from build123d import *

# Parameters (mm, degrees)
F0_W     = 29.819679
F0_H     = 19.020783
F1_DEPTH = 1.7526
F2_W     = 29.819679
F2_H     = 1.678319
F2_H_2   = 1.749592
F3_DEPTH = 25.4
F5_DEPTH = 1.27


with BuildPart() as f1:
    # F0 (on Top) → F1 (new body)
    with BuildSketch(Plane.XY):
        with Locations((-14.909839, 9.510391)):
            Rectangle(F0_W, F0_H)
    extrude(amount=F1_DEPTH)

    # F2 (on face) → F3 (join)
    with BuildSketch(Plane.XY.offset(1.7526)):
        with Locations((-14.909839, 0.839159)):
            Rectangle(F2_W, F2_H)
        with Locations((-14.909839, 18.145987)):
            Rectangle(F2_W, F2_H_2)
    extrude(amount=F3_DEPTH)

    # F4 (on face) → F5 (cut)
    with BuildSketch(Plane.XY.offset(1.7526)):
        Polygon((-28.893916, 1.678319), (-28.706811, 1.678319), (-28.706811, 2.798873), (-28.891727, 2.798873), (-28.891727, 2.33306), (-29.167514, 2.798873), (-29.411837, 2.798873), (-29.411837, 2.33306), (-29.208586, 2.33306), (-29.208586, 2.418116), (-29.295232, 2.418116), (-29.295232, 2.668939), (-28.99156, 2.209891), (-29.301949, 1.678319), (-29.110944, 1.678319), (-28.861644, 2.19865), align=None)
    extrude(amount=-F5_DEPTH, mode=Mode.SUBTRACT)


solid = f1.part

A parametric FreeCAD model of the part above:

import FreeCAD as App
import Part
import Sketcher
Q = App.Units.Quantity


def add_polygon(sketch, points):
    """Adds a closed chain of lines whose ends are joined by coincident constraints."""
    first, n = sketch.GeometryCount, len(points)
    for a, b in zip(points, points[1:] + points[:1]):
        sketch.addGeometry(Part.LineSegment(App.Vector(*a, 0), App.Vector(*b, 0)), False)
    for i in range(n):
        sketch.addConstraint(Sketcher.Constraint("Coincident", first + i, 2, first + (i + 1) % n, 1))

doc = App.newDocument("Part")
body = doc.addObject("PartDesign::Body", "Body")

sketch1 = body.newObject("Sketcher::SketchObject", "Sketch")
sketch1.AttachmentSupport = (doc.getObject("XY_Plane"), [""])
sketch1.MapMode = "FlatFace"
add_polygon(sketch1, [(-29.819678, 19.020782), (-29.819678, 0), (0, 0), (0, 19.020782)])
sketch1.addConstraint([
    Sketcher.Constraint("Vertical", 0),
    Sketcher.Constraint("Horizontal", 1),
    Sketcher.Constraint("Vertical", 2),
    Sketcher.Constraint("Horizontal", 3),
    Sketcher.Constraint("Coincident", 1, 2, -1, 1),
    Sketcher.Constraint("DistanceX", 1, 1, 1, 2, Q("29.819679 mm")),
    Sketcher.Constraint("DistanceY", 0, 2, 0, 1, Q("19.020783 mm")),
])
pad1 = body.newObject("PartDesign::Pad", "Pad")
pad1.Profile = sketch1
pad1.Length = Q("0.069 in")

sketch2 = body.newObject("Sketcher::SketchObject", "Sketch001")
sketch2.AttachmentSupport = (doc.getObject("XY_Plane"), [""])
sketch2.MapMode = "FlatFace"
sketch2.AttachmentOffset = App.Placement(App.Vector(0, 0, 0.069 * 25.4), App.Rotation())
add_polygon(sketch2, [(-29.819678, 1.678319), (-29.819678, 0), (0, 0), (0, 1.678319)])
add_polygon(sketch2, [(-29.819678, 19.020783), (-29.819678, 17.271191), (0, 17.271191), (0, 19.020783)])
sketch2.addConstraint([
    Sketcher.Constraint("Vertical", 0),
    Sketcher.Constraint("Horizontal", 1),
    Sketcher.Constraint("Vertical", 2),
    Sketcher.Constraint("Horizontal", 3),
    Sketcher.Constraint("Vertical", 4),
    Sketcher.Constraint("Horizontal", 5),
    Sketcher.Constraint("Vertical", 6),
    Sketcher.Constraint("Horizontal", 7),
    Sketcher.Constraint("Coincident", 1, 2, -1, 1),
    Sketcher.Constraint("PointOnObject", 5, 2, -2),
    Sketcher.Constraint("Vertical", 3, 2, 4, 2),
    Sketcher.Constraint("DistanceX", 1, 1, 1, 2, Q("29.819679 mm")),
    Sketcher.Constraint("DistanceY", 0, 2, 0, 1, Q("1.678319 mm")),
    Sketcher.Constraint("DistanceY", 4, 2, 4, 1, Q("1.749592 mm")),
    Sketcher.Constraint("DistanceY", -1, 1, 4, 2, Q("17.271191 mm")),
])
pad2 = body.newObject("PartDesign::Pad", "Pad001")
pad2.Profile = sketch2
pad2.Length = Q("1 in")

sketch3 = body.newObject("Sketcher::SketchObject", "Sketch002")
sketch3.AttachmentSupport = (doc.getObject("XY_Plane"), [""])
sketch3.MapMode = "FlatFace"
sketch3.AttachmentOffset = App.Placement(App.Vector(0, 0, 0.069 * 25.4), App.Rotation())
add_polygon(sketch3, [(-28.893916, 1.678319), (-28.706811, 1.678319), (-28.706811, 2.798873), (-28.891727, 2.798873), (-28.891727, 2.33306), (-29.167514, 2.798873), (-29.411837, 2.798873), (-29.411837, 2.33306), (-29.208586, 2.33306), (-29.208586, 2.418116), (-29.295232, 2.418116), (-29.295232, 2.668939), (-28.99156, 2.209891), (-29.301949, 1.678319), (-29.110944, 1.678319), (-28.861644, 2.19865)])
sketch3.addConstraint([
    Sketcher.Constraint("Horizontal", 0),
    Sketcher.Constraint("Vertical", 1),
    Sketcher.Constraint("Horizontal", 2),
    Sketcher.Constraint("Vertical", 3),
    Sketcher.Constraint("Horizontal", 5),
    Sketcher.Constraint("Vertical", 6),
    Sketcher.Constraint("Horizontal", 7),
    Sketcher.Constraint("Vertical", 8),
    Sketcher.Constraint("Horizontal", 9),
    Sketcher.Constraint("Vertical", 10),
    Sketcher.Constraint("Horizontal", 13),
    Sketcher.Constraint("Horizontal", 2, 2, 4, 2),
    Sketcher.Constraint("Horizontal", 3, 2, 6, 2),
    Sketcher.Constraint("Horizontal", 0, 2, 12, 2),
    Sketcher.Constraint("DistanceX", 11, 2, -1, 1, Q("1.1414 in")),
    Sketcher.Constraint("DistanceX", 13, 2, -1, 1, Q("1.1461002 in")),
    Sketcher.Constraint("Distance", 11, Q("0.550401 mm")),
    Sketcher.Constraint("DistanceX", 7, 1, 7, 2, Q("0.203251 mm")),
    Sketcher.Constraint("Distance", 4, Q("0.541332 mm")),
    Sketcher.Constraint("Distance", 14, Q("0.57697 mm")),
    Sketcher.Constraint("Distance", 15, Q("0.521331 mm")),
    Sketcher.Constraint("DistanceX", 0, 1, 0, 2, Q("0.187105 mm")),
    Sketcher.Constraint("DistanceX", 2, 2, 2, 1, Q("0.184916 mm")),
    Sketcher.Constraint("DistanceX", 5, 2, 5, 1, Q("0.244323 mm")),
    Sketcher.Constraint("DistanceX", 9, 2, 9, 1, Q("0.086646 mm")),
    Sketcher.Constraint("DistanceX", 13, 1, 13, 2, Q("0.191005 mm")),
    Sketcher.Constraint("DistanceY", 1, 1, 1, 2, Q("1.120554 mm")),
    Sketcher.Constraint("DistanceY", 3, 2, 3, 1, Q("0.465813 mm")),
    Sketcher.Constraint("DistanceY", 8, 1, 8, 2, Q("0.085056 mm")),
    Sketcher.Constraint("DistanceY", 10, 1, 10, 2, Q("0.250823 mm")),
    Sketcher.Constraint("DistanceX", 0, 2, -1, 1, Q("28.706811 mm")),
    Sketcher.Constraint("DistanceY", -1, 1, 0, 2, Q("1.678319 mm")),
])
pocket1 = body.newObject("PartDesign::Pocket", "Pocket")
pocket1.Profile = sketch3
pocket1.Length = Q("0.05 in")

doc.recompute()
